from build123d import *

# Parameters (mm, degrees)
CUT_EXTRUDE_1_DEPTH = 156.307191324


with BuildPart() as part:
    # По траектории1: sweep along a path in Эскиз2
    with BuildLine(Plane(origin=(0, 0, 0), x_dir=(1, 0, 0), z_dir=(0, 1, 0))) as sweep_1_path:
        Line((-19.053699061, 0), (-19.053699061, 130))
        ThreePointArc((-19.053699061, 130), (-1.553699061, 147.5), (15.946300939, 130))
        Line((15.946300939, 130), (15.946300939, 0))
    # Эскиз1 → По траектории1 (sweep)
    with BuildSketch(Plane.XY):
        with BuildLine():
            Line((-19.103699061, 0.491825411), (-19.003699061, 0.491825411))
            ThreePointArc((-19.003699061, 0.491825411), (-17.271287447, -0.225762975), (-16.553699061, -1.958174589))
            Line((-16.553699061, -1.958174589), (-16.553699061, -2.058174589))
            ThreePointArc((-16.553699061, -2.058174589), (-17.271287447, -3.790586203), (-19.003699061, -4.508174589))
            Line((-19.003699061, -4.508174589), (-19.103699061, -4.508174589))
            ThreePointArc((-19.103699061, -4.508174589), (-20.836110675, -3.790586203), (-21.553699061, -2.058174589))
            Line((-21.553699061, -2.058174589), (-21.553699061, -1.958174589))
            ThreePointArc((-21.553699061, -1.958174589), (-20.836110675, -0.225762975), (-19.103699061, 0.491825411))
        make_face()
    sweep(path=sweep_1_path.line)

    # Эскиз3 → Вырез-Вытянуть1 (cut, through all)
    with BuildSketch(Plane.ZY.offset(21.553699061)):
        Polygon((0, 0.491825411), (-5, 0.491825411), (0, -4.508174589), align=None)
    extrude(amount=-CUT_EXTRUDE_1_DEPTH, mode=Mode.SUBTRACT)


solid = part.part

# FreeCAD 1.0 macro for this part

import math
import FreeCAD as App
import Part
import Sketcher


def add_polygon(sketch, points):
    """Adds a closed chain of lines whose ends are joined by coincident constraints."""
    first, n = sketch.GeometryCount, len(points)
    for a, b in zip(points, points[1:] + points[:1]):
        sketch.addGeometry(Part.LineSegment(App.Vector(*a, 0), App.Vector(*b, 0)), False)
    for i in range(n):
        sketch.addConstraint(Sketcher.Constraint("Coincident", first + i, 2, first + (i + 1) % n, 1))

doc = App.newDocument("Part")
params = doc.addObject("Spreadsheet::Sheet", "Params")
for row, (alias, value) in enumerate([
    ("sketch1_radius", "2.45 mm"),
    ("sketch1_width", "0.1 mm"),
    ("sketch2_radius", "17.5 mm"),
    ("sketch2_height", "130 mm"),
    ("sketch3_width", "5 mm"),
], start=1):
    params.set(f"A{row}", alias)
    params.set(f"B{row}", "=" + value)
    params.setAlias(f"B{row}", alias)

body = doc.addObject("PartDesign::Body", "Body")

sketch1 = body.newObject("Sketcher::SketchObject", "Sketch")
sketch1.AttachmentSupport = (doc.getObject("XY_Plane"), [""])
sketch1.MapMode = "FlatFace"
sketch1.addGeometry(Part.LineSegment(App.Vector(-19, 0.49, 0), App.Vector(-19.1, 0.49, 0)), False)
sketch1.addGeometry(Part.ArcOfCircle(Part.Circle(App.Vector(-19.1, -1.96, 0), App.Vector(0, 0, 1), 2.45), math.radians(90), math.radians(180)), False)
sketch1.addGeometry(Part.LineSegment(App.Vector(-21.55, -1.96, 0), App.Vector(-21.55, -2.06, 0)), False)
sketch1.addGeometry(Part.ArcOfCircle(Part.Circle(App.Vector(-19.1, -2.06, 0), App.Vector(0, 0, 1), 2.45), math.radians(180), math.radians(270)), False)
sketch1.addGeometry(Part.LineSegment(App.Vector(-19.1, -4.51, 0), App.Vector(-19, -4.51, 0)), False)
sketch1.addGeometry(Part.ArcOfCircle(Part.Circle(App.Vector(-19, -2.06, 0), App.Vector(0, 0, 1), 2.45), math.radians(-90), math.radians(0)), False)
sketch1.addGeometry(Part.LineSegment(App.Vector(-16.55, -2.06, 0), App.Vector(-16.55, -1.96, 0)), False)
sketch1.addGeometry(Part.ArcOfCircle(Part.Circle(App.Vector(-19, -1.96, 0), App.Vector(0, 0, 1), 2.45), math.radians(0), math.radians(90)), False)
sketch1.addConstraint(Sketcher.Constraint("Tangent", 0, 2, 1, 1))
sketch1.addConstraint(Sketcher.Constraint("Tangent", 1, 2, 2, 1))
sketch1.addConstraint(Sketcher.Constraint("Tangent", 2, 2, 3, 1))
sketch1.addConstraint(Sketcher.Constraint("Tangent", 3, 2, 4, 1))
sketch1.addConstraint(Sketcher.Constraint("Tangent", 4, 2, 5, 1))
sketch1.addConstraint(Sketcher.Constraint("Tangent", 5, 2, 6, 1))
sketch1.addConstraint(Sketcher.Constraint("Tangent", 6, 2, 7, 1))
sketch1.addConstraint(Sketcher.Constraint("Tangent", 7, 2, 0, 1))
sketch1.addConstraint(Sketcher.Constraint("Horizontal", 0))
sketch1.addConstraint(Sketcher.Constraint("Vertical", 2))
sketch1.addConstraint(Sketcher.Constraint("Horizontal", 4))
sketch1.addConstraint(Sketcher.Constraint("Vertical", 6))
sketch1.addConstraint(Sketcher.Constraint("Equal", 1, 3))
sketch1.addConstraint(Sketcher.Constraint("Equal", 3, 5))
sketch1.addConstraint(Sketcher.Constraint("Equal", 5, 7))
sketch1.addConstraint(Sketcher.Constraint("Equal", 4, 2))
sketch1.addConstraint(Sketcher.Constraint("Radius", 1, 2.45))
sketch1.addConstraint(Sketcher.Constraint("DistanceX", 0, 2, 0, 1, 0.1))
sketch1.addConstraint(Sketcher.Constraint("DistanceX", 1, 3, -1, 1, 19.103699))
sketch1.addConstraint(Sketcher.Constraint("DistanceY", 1, 3, -1, 1, 1.958175))
sketch1.setExpression("Constraints[16]", "Params.sketch1_radius")
sketch1.setExpression("Constraints[17]", "Params.sketch1_width")

sketch2 = body.newObject("Sketcher::SketchObject", "Sketch001")
sketch2.AttachmentSupport = (doc.getObject("XZ_Plane"), [""])
sketch2.MapMode = "FlatFace"
sketch2.addGeometry(Part.LineSegment(App.Vector(-19, 0, 0), App.Vector(-19, -130, 0)), False)
sketch2.addGeometry(Part.ArcOfCircle(Part.Circle(App.Vector(-2, -130, 0), App.Vector(0, 0, 1), 18), math.radians(180), math.radians(360)), False)
sketch2.addGeometry(Part.LineSegment(App.Vector(16, -130, 0), App.Vector(16, 0, 0)), False)
sketch2.addConstraint(Sketcher.Constraint("Tangent", 0, 2, 1, 1))
sketch2.addConstraint(Sketcher.Constraint("Tangent", 1, 2, 2, 1))
sketch2.addConstraint(Sketcher.Constraint("Vertical", 0))
sketch2.addConstraint(Sketcher.Constraint("Vertical", 2))
sketch2.addConstraint(Sketcher.Constraint("PointOnObject", 0, 1, -1))
sketch2.addConstraint(Sketcher.Constraint("PointOnObject", 2, 2, -1))
sketch2.addConstraint(Sketcher.Constraint("Radius", 1, 17.5))
sketch2.addConstraint(Sketcher.Constraint("DistanceY", 0, 2, 0, 1, 130.0))
sketch2.addConstraint(Sketcher.Constraint("DistanceX", 1, 3, -1, 1, 1.553699))
sketch2.setExpression("Constraints[6]", "Params.sketch2_radius")
sketch2.setExpression("Constraints[7]", "Params.sketch2_height")
doc.recompute()

additivepipe = body.newObject("PartDesign::AdditivePipe", "AdditivePipe")
additivepipe.Profile = sketch1
additivepipe.Spine = (sketch2, ["Edge1", "Edge2", "Edge3"])

sketch3 = body.newObject("Sketcher::SketchObject", "Sketch002")
sketch3.AttachmentSupport = (doc.getObject("YZ_Plane"), [""])
sketch3.MapMode = "FlatFace"
sketch3.AttachmentOffset = App.Placement(App.Vector(0, 0, -21.553699), App.Rotation())
add_polygon(sketch3, [(0, 0), (0, -5), (-5, 0)])
sketch3.addConstraint(Sketcher.Constraint("Vertical", 0))
sketch3.addConstraint(Sketcher.Constraint("Horizontal", 2))
sketch3.addConstraint(Sketcher.Constraint("PointOnObject", 1, 2, -1))
sketch3.addConstraint(Sketcher.Constraint("Equal", 2, 0))
sketch3.addConstraint(Sketcher.Constraint("DistanceX", 2, 1, 2, 2, 5.0))
sketch3.addConstraint(Sketcher.Constraint("DistanceX", -1, 1, 0, 2, 0.491825))
sketch3.setExpression("Constraints[7]", "Params.sketch3_width")
pocket1 = body.newObject("PartDesign::Pocket", "Pocket")
pocket1.Profile = sketch3
pocket1.Type = "ThroughAll"
pocket1.Reversed = True

doc.recompute()
